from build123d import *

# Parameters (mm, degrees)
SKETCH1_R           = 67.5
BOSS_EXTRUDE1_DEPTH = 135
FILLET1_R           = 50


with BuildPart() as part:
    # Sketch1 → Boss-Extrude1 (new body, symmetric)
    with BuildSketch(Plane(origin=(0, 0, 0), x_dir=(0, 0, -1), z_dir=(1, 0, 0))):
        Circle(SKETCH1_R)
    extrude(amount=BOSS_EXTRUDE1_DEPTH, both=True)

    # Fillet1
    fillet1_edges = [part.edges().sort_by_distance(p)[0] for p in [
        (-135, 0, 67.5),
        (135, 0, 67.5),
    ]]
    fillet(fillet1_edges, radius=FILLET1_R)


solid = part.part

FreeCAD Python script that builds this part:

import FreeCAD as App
import Part
import Sketcher


def edges_at(feature, points):
    """Names of the edges that pass closest to the given points."""
    edges = feature.Shape.Edges
    near = lambda p: min(range(len(edges)), key=lambda i: edges[i].distToShape(Part.Vertex(*p))[0])
    return sorted({f"Edge{near(p) + 1}" for p in points})

doc = App.newDocument("Part")
body = doc.addObject("PartDesign::Body", "Body")

sketch1 = body.newObject("Sketcher::SketchObject", "Sketch")
sketch1.AttachmentSupport = (doc.getObject("YZ_Plane"), [""])
sketch1.MapMode = "FlatFace"
sketch1.addGeometry(Part.Circle(App.Vector(0, 0, 0), App.Vector(0, 0, 1), 68), False)
sketch1.addConstraint([
    Sketcher.Constraint("Coincident", 0, 3, -1, 1),
    Sketcher.Constraint("Diameter", 0, 135.0),
])
pad1 = body.newObject("PartDesign::Pad", "Pad")
pad1.Profile = sketch1
pad1.Length = 270
pad1.Midplane = True
doc.recompute()

fillet = body.newObject("PartDesign::Fillet", "Fillet")
fillet.Base = (pad1, edges_at(pad1, [(-135, 0, 67.5), (135, 0, 67.5)]))
fillet.Radius = 50

doc.recompute()
